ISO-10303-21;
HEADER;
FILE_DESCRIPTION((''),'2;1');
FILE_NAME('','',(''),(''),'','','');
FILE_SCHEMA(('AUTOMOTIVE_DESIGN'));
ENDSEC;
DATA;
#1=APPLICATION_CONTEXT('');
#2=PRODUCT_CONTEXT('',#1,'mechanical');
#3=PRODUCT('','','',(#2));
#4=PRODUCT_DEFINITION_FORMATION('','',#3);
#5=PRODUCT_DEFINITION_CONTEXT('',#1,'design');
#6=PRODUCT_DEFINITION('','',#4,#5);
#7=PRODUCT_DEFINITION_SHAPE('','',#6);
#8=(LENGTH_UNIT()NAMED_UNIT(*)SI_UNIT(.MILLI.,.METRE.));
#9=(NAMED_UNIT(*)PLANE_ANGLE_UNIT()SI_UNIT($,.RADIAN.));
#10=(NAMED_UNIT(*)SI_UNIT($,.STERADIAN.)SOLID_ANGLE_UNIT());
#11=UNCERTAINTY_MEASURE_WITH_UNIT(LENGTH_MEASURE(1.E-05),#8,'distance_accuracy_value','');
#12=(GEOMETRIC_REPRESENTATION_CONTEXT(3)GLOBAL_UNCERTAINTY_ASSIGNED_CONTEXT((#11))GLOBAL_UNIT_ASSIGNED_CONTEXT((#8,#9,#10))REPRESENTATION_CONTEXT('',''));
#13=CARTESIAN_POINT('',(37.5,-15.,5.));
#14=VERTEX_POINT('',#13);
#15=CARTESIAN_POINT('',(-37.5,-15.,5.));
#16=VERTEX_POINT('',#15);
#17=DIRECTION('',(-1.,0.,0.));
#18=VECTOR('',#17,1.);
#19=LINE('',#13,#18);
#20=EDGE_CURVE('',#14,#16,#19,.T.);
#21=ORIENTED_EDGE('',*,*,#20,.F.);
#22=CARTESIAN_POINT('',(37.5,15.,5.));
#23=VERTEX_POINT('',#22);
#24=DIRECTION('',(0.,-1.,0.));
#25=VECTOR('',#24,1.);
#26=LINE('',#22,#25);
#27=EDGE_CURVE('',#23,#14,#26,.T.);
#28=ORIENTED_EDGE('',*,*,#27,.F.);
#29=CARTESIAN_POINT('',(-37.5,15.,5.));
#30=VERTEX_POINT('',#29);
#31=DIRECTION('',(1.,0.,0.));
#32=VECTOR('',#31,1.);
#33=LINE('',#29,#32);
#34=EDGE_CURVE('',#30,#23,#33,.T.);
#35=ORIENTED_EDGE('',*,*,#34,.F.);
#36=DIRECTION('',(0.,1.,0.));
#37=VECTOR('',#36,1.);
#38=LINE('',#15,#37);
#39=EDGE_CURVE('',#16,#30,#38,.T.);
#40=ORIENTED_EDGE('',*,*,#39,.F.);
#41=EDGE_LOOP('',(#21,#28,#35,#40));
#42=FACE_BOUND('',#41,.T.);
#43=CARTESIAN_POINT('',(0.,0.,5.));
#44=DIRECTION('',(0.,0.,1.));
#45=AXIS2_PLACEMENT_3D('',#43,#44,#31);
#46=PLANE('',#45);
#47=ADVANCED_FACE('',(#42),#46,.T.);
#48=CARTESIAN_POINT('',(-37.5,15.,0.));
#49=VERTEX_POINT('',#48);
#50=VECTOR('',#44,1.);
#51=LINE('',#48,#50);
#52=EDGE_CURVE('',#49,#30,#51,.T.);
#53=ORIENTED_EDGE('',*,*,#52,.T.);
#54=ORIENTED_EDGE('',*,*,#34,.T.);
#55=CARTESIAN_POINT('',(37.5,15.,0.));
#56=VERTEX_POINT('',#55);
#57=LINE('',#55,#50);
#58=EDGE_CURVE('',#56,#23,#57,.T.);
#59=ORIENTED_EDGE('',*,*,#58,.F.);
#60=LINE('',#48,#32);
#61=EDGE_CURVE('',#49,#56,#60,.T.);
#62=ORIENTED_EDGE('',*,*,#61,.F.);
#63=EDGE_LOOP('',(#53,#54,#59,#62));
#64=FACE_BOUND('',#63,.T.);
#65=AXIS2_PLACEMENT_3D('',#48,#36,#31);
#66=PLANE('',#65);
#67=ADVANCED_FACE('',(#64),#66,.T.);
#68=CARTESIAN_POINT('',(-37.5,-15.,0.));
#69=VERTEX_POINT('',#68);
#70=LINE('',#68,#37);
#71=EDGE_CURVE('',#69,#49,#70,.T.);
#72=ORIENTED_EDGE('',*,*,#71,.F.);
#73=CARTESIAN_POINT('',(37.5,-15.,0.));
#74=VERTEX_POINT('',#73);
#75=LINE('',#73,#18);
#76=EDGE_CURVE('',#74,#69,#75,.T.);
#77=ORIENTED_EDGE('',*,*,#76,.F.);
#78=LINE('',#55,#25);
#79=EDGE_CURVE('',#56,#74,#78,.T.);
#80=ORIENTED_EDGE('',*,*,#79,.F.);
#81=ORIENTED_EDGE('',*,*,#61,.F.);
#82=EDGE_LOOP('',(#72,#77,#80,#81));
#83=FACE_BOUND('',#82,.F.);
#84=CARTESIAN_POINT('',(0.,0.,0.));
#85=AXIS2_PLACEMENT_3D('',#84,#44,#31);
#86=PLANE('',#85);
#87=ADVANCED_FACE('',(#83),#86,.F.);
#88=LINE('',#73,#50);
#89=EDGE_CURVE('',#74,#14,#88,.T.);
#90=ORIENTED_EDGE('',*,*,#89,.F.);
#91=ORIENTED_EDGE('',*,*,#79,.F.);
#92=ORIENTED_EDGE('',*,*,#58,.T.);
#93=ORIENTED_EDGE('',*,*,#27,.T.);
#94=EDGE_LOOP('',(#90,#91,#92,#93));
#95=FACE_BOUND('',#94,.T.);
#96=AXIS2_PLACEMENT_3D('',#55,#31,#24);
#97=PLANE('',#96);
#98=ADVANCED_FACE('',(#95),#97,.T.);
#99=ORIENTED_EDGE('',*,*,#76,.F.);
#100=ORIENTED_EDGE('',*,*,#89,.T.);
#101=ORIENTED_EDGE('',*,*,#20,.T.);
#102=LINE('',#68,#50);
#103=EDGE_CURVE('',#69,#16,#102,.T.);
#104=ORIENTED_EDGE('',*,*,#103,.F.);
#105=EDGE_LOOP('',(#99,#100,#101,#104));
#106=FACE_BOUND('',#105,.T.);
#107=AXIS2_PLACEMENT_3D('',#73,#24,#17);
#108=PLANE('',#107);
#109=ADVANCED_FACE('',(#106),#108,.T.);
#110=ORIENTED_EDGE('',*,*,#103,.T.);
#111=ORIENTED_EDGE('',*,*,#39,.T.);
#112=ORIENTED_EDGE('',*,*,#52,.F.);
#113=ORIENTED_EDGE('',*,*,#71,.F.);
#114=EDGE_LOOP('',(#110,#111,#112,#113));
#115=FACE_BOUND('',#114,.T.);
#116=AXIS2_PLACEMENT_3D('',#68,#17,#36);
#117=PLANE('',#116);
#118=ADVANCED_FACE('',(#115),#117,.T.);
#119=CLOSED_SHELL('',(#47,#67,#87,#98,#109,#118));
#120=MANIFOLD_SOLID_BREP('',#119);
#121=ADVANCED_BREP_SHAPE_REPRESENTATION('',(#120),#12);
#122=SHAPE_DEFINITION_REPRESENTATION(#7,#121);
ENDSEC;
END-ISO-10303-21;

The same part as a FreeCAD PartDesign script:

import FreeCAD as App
import Part
import Sketcher
Q = App.Units.Quantity

doc = App.newDocument("Part")
params = doc.addObject("Spreadsheet::Sheet", "Params")
for row, (alias, value) in enumerate([
    ("sketch1_width", "75 mm"),
    ("sketch1_height", "30 mm"),
    ("pad1_length", "5 mm"),
], start=1):
    params.set(f"A{row}", alias)
    params.set(f"B{row}", "=" + value)
    params.setAlias(f"B{row}", alias)

body = doc.addObject("PartDesign::Body", "Body")

# Sketch on XY plane
sketch1 = body.newObject("Sketcher::SketchObject", "Sketch")
sketch1.AttachmentSupport = (doc.getObject("XY_Plane"), [""])
sketch1.MapMode = "FlatFace"
sketch1.addGeometry([
    Part.LineSegment(App.Vector(38, 15, 0), App.Vector(-38, 15, 0)),
    Part.LineSegment(App.Vector(-38, 15, 0), App.Vector(-38, -15, 0)),
    Part.LineSegment(App.Vector(-38, -15, 0), App.Vector(38, -15, 0)),
    Part.LineSegment(App.Vector(38, -15, 0), App.Vector(38, 15, 0)),
], False)
sketch1.addConstraint([
    Sketcher.Constraint("Coincident", 0, 2, 1, 1),
    Sketcher.Constraint("Coincident", 1, 2, 2, 1),
    Sketcher.Constraint("Coincident", 2, 2, 3, 1),
    Sketcher.Constraint("Coincident", 3, 2, 0, 1),
    Sketcher.Constraint("Horizontal", 0),
    Sketcher.Constraint("Vertical", 1),
    Sketcher.Constraint("Horizontal", 2),
    Sketcher.Constraint("Vertical", 3),
    Sketcher.Constraint("Symmetric", 0, 2, 2, 2, -1, 1),
    Sketcher.Constraint("DistanceX", 0, 2, 0, 1, Q("75 mm")),
    Sketcher.Constraint("DistanceY", 1, 2, 1, 1, Q("30 mm")),
])
sketch1.setExpression("Constraints[9]", "Params.sketch1_width")
sketch1.setExpression("Constraints[10]", "Params.sketch1_height")
pad1 = body.newObject("PartDesign::Pad", "Pad")
pad1.Profile = sketch1
pad1.setExpression("Length", "Params.pad1_length")

doc.recompute()
